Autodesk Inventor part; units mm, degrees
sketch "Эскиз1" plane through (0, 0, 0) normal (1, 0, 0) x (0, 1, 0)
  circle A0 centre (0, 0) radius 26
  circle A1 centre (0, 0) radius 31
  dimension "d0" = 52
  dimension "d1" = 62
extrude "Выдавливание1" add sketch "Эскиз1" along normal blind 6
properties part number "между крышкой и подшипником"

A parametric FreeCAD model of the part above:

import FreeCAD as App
import Part
import Sketcher
from FreeCAD import Vector

doc = App.newDocument("Part")
body = doc.addObject("PartDesign::Body", "Body")

sketch1 = body.newObject("Sketcher::SketchObject", "Sketch")
sketch1.AttachmentSupport = (doc.getObject("YZ_Plane"), [""])
sketch1.MapMode = "FlatFace"
sketch1.addGeometry(Part.Circle(Vector(0, 0, 0), Vector(0, 0, 1), 31), False)
sketch1.addGeometry(Part.Circle(Vector(0, 0, 0), Vector(0, 0, 1), 26), False)
sketch1.addConstraint(Sketcher.Constraint("Coincident", 0, 3, -1, 1))
sketch1.addConstraint(Sketcher.Constraint("Coincident", 1, 3, -1, 1))
sketch1.addConstraint(Sketcher.Constraint("Diameter", 0, 62.0))
sketch1.addConstraint(Sketcher.Constraint("Diameter", 1, 52.0))
pad1 = body.newObject("PartDesign::Pad", "Pad")
pad1.Profile = sketch1
pad1.Length = 6

doc.recompute()
